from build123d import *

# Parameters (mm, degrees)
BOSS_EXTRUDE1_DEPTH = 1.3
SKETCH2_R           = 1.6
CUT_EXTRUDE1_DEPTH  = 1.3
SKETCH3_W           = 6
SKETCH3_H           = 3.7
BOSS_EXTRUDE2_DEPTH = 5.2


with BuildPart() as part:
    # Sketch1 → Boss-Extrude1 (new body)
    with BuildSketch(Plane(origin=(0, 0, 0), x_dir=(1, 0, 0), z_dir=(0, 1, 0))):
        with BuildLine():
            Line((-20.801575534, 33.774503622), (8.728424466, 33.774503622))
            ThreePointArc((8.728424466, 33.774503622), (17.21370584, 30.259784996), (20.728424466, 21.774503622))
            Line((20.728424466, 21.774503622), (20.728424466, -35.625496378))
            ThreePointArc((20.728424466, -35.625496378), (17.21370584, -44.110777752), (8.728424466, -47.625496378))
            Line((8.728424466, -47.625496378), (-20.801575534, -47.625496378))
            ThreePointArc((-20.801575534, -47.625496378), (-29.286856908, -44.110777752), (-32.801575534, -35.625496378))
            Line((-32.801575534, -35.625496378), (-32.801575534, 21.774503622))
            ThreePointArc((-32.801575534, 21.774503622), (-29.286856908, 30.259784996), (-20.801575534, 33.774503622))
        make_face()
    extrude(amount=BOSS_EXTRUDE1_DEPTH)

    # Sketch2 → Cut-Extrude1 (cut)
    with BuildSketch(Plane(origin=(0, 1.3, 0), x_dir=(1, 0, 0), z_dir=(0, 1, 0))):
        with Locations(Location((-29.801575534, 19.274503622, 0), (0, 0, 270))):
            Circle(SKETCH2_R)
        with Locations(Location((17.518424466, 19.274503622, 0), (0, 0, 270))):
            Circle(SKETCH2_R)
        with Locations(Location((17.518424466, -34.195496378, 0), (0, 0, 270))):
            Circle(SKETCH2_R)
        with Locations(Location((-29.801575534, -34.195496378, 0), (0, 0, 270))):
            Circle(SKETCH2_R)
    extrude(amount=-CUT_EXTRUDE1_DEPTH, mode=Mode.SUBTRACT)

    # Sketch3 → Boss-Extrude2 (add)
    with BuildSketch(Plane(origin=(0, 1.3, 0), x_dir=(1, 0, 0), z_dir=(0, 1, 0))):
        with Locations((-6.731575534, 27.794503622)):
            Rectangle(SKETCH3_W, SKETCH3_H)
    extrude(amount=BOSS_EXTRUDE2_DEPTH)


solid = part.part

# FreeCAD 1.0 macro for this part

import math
import FreeCAD as App
import Part
import Sketcher

V = App.Vector
Q = App.Units.Quantity

doc = App.newDocument("Part")
body = doc.addObject("PartDesign::Body", "Body")

# Sketch on XZ plane
sketch1 = doc.addObject("Sketcher::SketchObject", "Sketch")
body.addObject(sketch1)
sketch1.AttachmentSupport = (doc.XZ_Plane, [""])
sketch1.MapMode = "FlatFace"
sketch1.addGeometry([
    Part.LineSegment(V(9, -34, 0), V(-21, -34, 0)),  # 0
    Part.ArcOfCircle(Part.Circle(V(-21, -22, 0), V(0, 0, 1), 12), math.radians(-180), math.radians(-90)),  # 1
    Part.LineSegment(V(-33, -22, 0), V(-33, 36, 0)),  # 2
    Part.ArcOfCircle(Part.Circle(V(-21, 36, 0), V(0, 0, 1), 12), math.radians(90), math.radians(180)),  # 3
    Part.LineSegment(V(-21, 48, 0), V(9, 48, 0)),  # 4
    Part.ArcOfCircle(Part.Circle(V(9, 36, 0), V(0, 0, 1), 12), math.radians(0), math.radians(90)),  # 5
    Part.LineSegment(V(21, 36, 0), V(21, -22, 0)),  # 6
    Part.ArcOfCircle(Part.Circle(V(9, -22, 0), V(0, 0, 1), 12), math.radians(-90), math.radians(0)),  # 7
], False)
sketch1.addConstraint([
    Sketcher.Constraint("Tangent", 0, 2, 1, 2),
    Sketcher.Constraint("Tangent", 1, 1, 2, 1),
    Sketcher.Constraint("Tangent", 2, 2, 3, 2),
    Sketcher.Constraint("Tangent", 3, 1, 4, 1),
    Sketcher.Constraint("Tangent", 4, 2, 5, 2),
    Sketcher.Constraint("Tangent", 5, 1, 6, 1),
    Sketcher.Constraint("Tangent", 6, 2, 7, 2),
    Sketcher.Constraint("Tangent", 7, 1, 0, 1),
    Sketcher.Constraint("Horizontal", 0),
    Sketcher.Constraint("Vertical", 2),
    Sketcher.Constraint("Horizontal", 4),
    Sketcher.Constraint("Vertical", 6),
    Sketcher.Constraint("Equal", 1, 3),
    Sketcher.Constraint("Equal", 3, 5),
    Sketcher.Constraint("Equal", 5, 7),
    Sketcher.Constraint("Radius", 1, Q("12 mm")),
    Sketcher.Constraint("DistanceY", 2, 1, 2, 2, Q("57.4 mm")),
    Sketcher.Constraint("DistanceX", 0, 2, 0, 1, Q("29.53 mm")),
    Sketcher.Constraint("DistanceX", 1, 3, -1, 1, Q("20.801576 mm")),
    Sketcher.Constraint("DistanceY", 1, 3, -1, 1, Q("21.774504 mm")),
])
pad1 = doc.addObject("PartDesign::Pad", "Pad")
body.addObject(pad1)
pad1.Profile = sketch1
pad1.Length = 1.3
pad1.Reversed = True

# Sketch on XZ plane
sketch2 = doc.addObject("Sketcher::SketchObject", "Sketch001")
body.addObject(sketch2)
sketch2.AttachmentSupport = (doc.XZ_Plane, [""])
sketch2.MapMode = "FlatFace"
sketch2.AttachmentOffset = App.Placement(V(0, 0, -1.3), App.Rotation())
sketch2.addGeometry([
    Part.Circle(V(-29.8, -19.3, 0), V(0, 0, 1), 1.6),
    Part.Circle(V(17.5, -19.3, 0), V(0, 0, 1), 1.6),
    Part.Circle(V(17.5, 34.2, 0), V(0, 0, 1), 1.6),
    Part.Circle(V(-29.8, 34.2, 0), V(0, 0, 1), 1.6),
], False)
sketch2.addConstraint([
    Sketcher.Constraint("Equal", 0, 1),
    Sketcher.Constraint("Equal", 1, 2),
    Sketcher.Constraint("Equal", 2, 3),
    Sketcher.Constraint("Horizontal", 0, 3, 1, 3),
    Sketcher.Constraint("Horizontal", 2, 3, 3, 3),
    Sketcher.Constraint("Vertical", 1, 3, 2, 3),
    Sketcher.Constraint("Vertical", 0, 3, 3, 3),
    Sketcher.Constraint("Diameter", 0, Q("3.2 mm")),
    Sketcher.Constraint("DistanceX", 0, 3, 1, 3, Q("47.32 mm")),
    Sketcher.Constraint("DistanceY", 1, 3, 2, 3, Q("53.47 mm")),
    Sketcher.Constraint("DistanceX", 0, 3, -1, 1, Q("29.801576 mm")),
    Sketcher.Constraint("DistanceY", 0, 3, -1, 1, Q("19.274504 mm")),
])
pocket1 = doc.addObject("PartDesign::Pocket", "Pocket")
body.addObject(pocket1)
pocket1.Profile = sketch2
pocket1.Length = 1.3
pocket1.Reversed = True

# Sketch on XZ plane
sketch3 = doc.addObject("Sketcher::SketchObject", "Sketch002")
body.addObject(sketch3)
sketch3.AttachmentSupport = (doc.XZ_Plane, [""])
sketch3.MapMode = "FlatFace"
sketch3.AttachmentOffset = App.Placement(V(0, 0, -1.3), App.Rotation())
sketch3.addGeometry([
    Part.LineSegment(V(-9.7, -29.6, 0), V(-9.7, -25.9, 0)),
    Part.LineSegment(V(-9.7, -25.9, 0), V(-3.7, -25.9, 0)),
    Part.LineSegment(V(-3.7, -25.9, 0), V(-3.7, -29.6, 0)),
    Part.LineSegment(V(-3.7, -29.6, 0), V(-9.7, -29.6, 0)),
], False)
sketch3.addConstraint([
    Sketcher.Constraint("Coincident", 0, 2, 1, 1),
    Sketcher.Constraint("Coincident", 1, 2, 2, 1),
    Sketcher.Constraint("Coincident", 2, 2, 3, 1),
    Sketcher.Constraint("Coincident", 3, 2, 0, 1),
    Sketcher.Constraint("Vertical", 0),
    Sketcher.Constraint("Horizontal", 1),
    Sketcher.Constraint("Vertical", 2),
    Sketcher.Constraint("Horizontal", 3),
    Sketcher.Constraint("DistanceX", 1, 1, 1, 2, Q("6 mm")),
    Sketcher.Constraint("DistanceY", 0, 1, 0, 2, Q("3.7 mm")),
    Sketcher.Constraint("DistanceX", 0, 2, -1, 1, Q("9.731576 mm")),
    Sketcher.Constraint("DistanceY", 0, 2, -1, 1, Q("25.944504 mm")),
])
pad2 = doc.addObject("PartDesign::Pad", "Pad001")
body.addObject(pad2)
pad2.Profile = sketch3
pad2.Length = 5.2
pad2.Reversed = True

doc.recompute()
